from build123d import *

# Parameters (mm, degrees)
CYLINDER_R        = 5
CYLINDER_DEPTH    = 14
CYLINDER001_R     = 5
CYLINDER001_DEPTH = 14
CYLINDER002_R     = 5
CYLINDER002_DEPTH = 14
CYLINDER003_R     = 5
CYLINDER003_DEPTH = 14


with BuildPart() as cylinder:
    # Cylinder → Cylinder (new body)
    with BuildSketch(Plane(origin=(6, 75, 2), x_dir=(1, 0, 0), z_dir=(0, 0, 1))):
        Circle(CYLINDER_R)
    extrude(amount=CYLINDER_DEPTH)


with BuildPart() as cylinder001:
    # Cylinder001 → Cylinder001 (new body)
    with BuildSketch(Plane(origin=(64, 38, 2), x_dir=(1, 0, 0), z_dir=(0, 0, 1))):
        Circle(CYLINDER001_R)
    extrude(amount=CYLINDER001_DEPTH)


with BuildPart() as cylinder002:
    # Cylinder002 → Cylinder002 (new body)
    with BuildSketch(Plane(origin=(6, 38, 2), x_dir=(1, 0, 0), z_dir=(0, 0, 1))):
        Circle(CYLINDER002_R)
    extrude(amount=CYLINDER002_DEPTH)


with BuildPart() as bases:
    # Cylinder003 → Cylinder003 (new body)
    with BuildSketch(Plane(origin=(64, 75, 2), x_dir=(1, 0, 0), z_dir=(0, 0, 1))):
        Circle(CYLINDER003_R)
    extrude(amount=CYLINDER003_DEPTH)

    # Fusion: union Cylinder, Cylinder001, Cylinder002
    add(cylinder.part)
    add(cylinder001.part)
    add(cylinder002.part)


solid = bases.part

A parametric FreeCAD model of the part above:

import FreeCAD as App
import Part
import Sketcher
from FreeCAD import Vector
Q = App.Units.Quantity

doc = App.newDocument("Part")
body = doc.addObject("PartDesign::Body", "Body")

sketch1 = doc.addObject("Sketcher::SketchObject", "Sketch")
body.addObject(sketch1)
sketch1.AttachmentSupport = (doc.XY_Plane, [""])
sketch1.MapMode = "FlatFace"
sketch1.AttachmentOffset = App.Placement(Vector(0, 0, 2), App.Rotation())
sketch1.addGeometry(Part.Circle(Vector(6, 75, 0), Vector(0, 0, 1), 5), False)
sketch1.addConstraint([
    Sketcher.Constraint("Diameter", 0, Q("10 mm")),
    Sketcher.Constraint("DistanceX", -1, 1, 0, 3, Q("6 mm")),
    Sketcher.Constraint("DistanceY", -1, 1, 0, 3, Q("75 mm")),
])
pad1 = doc.addObject("PartDesign::Pad", "Pad")
body.addObject(pad1)
pad1.Profile = sketch1
pad1.Length = 14
body2 = doc.addObject("PartDesign::Body", "Body001")

sketch2 = doc.addObject("Sketcher::SketchObject", "Sketch001")
body2.addObject(sketch2)
sketch2.AttachmentSupport = (doc.getObject("XY_Plane001"), [""])
sketch2.MapMode = "FlatFace"
sketch2.AttachmentOffset = App.Placement(Vector(0, 0, 2), App.Rotation())
sketch2.addGeometry(Part.Circle(Vector(64, 38, 0), Vector(0, 0, 1), 5), False)
sketch2.addConstraint([
    Sketcher.Constraint("Diameter", 0, Q("10 mm")),
    Sketcher.Constraint("DistanceX", -1, 1, 0, 3, Q("64 mm")),
    Sketcher.Constraint("DistanceY", -1, 1, 0, 3, Q("38 mm")),
])
pad2 = doc.addObject("PartDesign::Pad", "Pad001")
body2.addObject(pad2)
pad2.Profile = sketch2
pad2.Length = 14
body3 = doc.addObject("PartDesign::Body", "Body002")

sketch3 = doc.addObject("Sketcher::SketchObject", "Sketch002")
body3.addObject(sketch3)
sketch3.AttachmentSupport = (doc.getObject("XY_Plane002"), [""])
sketch3.MapMode = "FlatFace"
sketch3.AttachmentOffset = App.Placement(Vector(0, 0, 2), App.Rotation())
sketch3.addGeometry(Part.Circle(Vector(6, 38, 0), Vector(0, 0, 1), 5), False)
sketch3.addConstraint([
    Sketcher.Constraint("Diameter", 0, Q("10 mm")),
    Sketcher.Constraint("DistanceX", -1, 1, 0, 3, Q("6 mm")),
    Sketcher.Constraint("DistanceY", -1, 1, 0, 3, Q("38 mm")),
])
pad3 = doc.addObject("PartDesign::Pad", "Pad002")
body3.addObject(pad3)
pad3.Profile = sketch3
pad3.Length = 14
body4 = doc.addObject("PartDesign::Body", "Body003")
body4.AllowCompound = True

sketch4 = doc.addObject("Sketcher::SketchObject", "Sketch003")
body4.addObject(sketch4)
sketch4.AttachmentSupport = (doc.getObject("XY_Plane003"), [""])
sketch4.MapMode = "FlatFace"
sketch4.AttachmentOffset = App.Placement(Vector(0, 0, 2), App.Rotation())
sketch4.addGeometry(Part.Circle(Vector(64, 75, 0), Vector(0, 0, 1), 5), False)
sketch4.addConstraint([
    Sketcher.Constraint("Diameter", 0, Q("10 mm")),
    Sketcher.Constraint("DistanceX", -1, 1, 0, 3, Q("64 mm")),
    Sketcher.Constraint("DistanceY", -1, 1, 0, 3, Q("75 mm")),
])
pad4 = doc.addObject("PartDesign::Pad", "Pad003")
body4.addObject(pad4)
pad4.Profile = sketch4
pad4.Length = 14
doc.recompute()

boolean = doc.addObject("PartDesign::Boolean", "Boolean")
body4.addObject(boolean)
boolean.Type = "Fuse"
boolean.addObjects([body])
doc.recompute()

boolean2 = doc.addObject("PartDesign::Boolean", "Boolean001")
body4.addObject(boolean2)
boolean2.Type = "Fuse"
boolean2.addObjects([body2])
doc.recompute()

boolean3 = doc.addObject("PartDesign::Boolean", "Boolean002")
body4.addObject(boolean3)
boolean3.Type = "Fuse"
boolean3.addObjects([body3])

doc.recompute()
